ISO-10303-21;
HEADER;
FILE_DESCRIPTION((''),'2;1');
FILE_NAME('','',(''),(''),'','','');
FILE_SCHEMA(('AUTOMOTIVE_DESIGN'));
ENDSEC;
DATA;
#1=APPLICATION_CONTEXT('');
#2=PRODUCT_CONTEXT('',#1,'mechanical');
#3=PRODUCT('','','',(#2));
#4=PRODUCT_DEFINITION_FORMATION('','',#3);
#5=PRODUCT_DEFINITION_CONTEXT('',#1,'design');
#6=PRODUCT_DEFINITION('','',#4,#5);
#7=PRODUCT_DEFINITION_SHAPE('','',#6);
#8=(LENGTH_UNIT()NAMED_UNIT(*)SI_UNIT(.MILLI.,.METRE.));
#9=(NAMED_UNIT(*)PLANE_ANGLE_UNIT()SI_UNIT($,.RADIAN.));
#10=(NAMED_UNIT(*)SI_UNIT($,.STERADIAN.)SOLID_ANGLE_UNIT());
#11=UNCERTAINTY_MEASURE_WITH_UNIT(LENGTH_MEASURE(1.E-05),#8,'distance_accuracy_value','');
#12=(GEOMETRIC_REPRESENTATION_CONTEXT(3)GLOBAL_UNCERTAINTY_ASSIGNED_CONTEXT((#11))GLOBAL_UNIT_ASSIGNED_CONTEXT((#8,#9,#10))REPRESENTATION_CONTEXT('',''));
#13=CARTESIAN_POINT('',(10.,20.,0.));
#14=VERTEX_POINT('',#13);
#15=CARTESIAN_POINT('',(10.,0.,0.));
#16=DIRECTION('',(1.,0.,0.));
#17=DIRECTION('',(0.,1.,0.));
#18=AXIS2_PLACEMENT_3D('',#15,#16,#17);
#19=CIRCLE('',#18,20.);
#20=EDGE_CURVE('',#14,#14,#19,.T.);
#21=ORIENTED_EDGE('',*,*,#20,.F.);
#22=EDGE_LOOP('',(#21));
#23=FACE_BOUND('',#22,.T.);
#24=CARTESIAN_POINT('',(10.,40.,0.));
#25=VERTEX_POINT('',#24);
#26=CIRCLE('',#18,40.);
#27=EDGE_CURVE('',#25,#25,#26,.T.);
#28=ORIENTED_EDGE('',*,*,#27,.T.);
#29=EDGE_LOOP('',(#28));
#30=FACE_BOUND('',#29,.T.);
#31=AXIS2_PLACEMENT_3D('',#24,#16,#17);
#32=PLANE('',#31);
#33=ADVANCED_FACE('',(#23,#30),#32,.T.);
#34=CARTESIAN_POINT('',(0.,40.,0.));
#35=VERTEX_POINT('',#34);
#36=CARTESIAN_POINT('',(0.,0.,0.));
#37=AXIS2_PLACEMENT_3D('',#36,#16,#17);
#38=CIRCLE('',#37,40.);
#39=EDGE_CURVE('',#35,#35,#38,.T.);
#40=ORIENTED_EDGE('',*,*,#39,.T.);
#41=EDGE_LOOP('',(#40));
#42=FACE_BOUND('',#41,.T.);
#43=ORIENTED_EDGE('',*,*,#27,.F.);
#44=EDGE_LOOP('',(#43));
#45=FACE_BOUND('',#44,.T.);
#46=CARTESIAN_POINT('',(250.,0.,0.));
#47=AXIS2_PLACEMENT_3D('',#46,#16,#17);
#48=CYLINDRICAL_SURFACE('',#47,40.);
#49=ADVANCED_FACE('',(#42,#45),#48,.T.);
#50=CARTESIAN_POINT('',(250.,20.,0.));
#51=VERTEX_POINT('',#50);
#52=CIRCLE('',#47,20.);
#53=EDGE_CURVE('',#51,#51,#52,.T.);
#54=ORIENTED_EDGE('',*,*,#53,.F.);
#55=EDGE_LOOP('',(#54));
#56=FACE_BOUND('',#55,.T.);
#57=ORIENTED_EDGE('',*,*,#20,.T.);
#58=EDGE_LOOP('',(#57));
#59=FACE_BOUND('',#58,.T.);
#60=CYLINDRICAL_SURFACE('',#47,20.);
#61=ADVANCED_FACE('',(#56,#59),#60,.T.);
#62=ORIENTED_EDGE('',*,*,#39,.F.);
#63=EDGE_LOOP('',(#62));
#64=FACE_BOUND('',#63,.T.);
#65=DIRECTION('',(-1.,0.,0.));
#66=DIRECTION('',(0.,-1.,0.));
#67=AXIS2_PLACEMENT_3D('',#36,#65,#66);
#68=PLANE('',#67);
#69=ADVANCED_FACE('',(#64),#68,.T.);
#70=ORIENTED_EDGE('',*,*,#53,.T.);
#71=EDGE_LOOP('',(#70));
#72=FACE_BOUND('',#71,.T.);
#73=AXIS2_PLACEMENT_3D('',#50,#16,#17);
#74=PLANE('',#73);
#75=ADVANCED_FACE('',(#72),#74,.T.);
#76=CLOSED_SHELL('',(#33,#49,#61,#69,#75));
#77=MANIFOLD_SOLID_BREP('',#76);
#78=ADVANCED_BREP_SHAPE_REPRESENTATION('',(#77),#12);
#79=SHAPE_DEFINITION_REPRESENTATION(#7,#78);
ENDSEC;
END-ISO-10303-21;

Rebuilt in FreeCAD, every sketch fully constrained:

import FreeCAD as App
import Part
import Sketcher
from FreeCAD import Vector

doc = App.newDocument("Part")
body = doc.addObject("PartDesign::Body", "Body")

sketch1 = body.newObject("Sketcher::SketchObject", "Sketch")
sketch1.AttachmentSupport = (doc.getObject("XY_Plane"), [""])
sketch1.MapMode = "FlatFace"
sketch1.addGeometry(Part.LineSegment(Vector(0, 40, 0), Vector(0, 0, 0)), False)
sketch1.addGeometry(Part.LineSegment(Vector(0, 0, 0), Vector(250, 0, 0)), False)
sketch1.addGeometry(Part.LineSegment(Vector(250, 0, 0), Vector(250, 20, 0)), False)
sketch1.addGeometry(Part.LineSegment(Vector(250, 20, 0), Vector(10, 20, 0)), False)
sketch1.addGeometry(Part.LineSegment(Vector(10, 20, 0), Vector(10, 40, 0)), False)
sketch1.addGeometry(Part.LineSegment(Vector(10, 40, 0), Vector(0, 40, 0)), False)
sketch1.addConstraint(Sketcher.Constraint("Coincident", 0, 2, 1, 1))
sketch1.addConstraint(Sketcher.Constraint("Coincident", 1, 2, 2, 1))
sketch1.addConstraint(Sketcher.Constraint("Coincident", 2, 2, 3, 1))
sketch1.addConstraint(Sketcher.Constraint("Coincident", 3, 2, 4, 1))
sketch1.addConstraint(Sketcher.Constraint("Coincident", 4, 2, 5, 1))
sketch1.addConstraint(Sketcher.Constraint("Coincident", 5, 2, 0, 1))
sketch1.addConstraint(Sketcher.Constraint("Vertical", 0))
sketch1.addConstraint(Sketcher.Constraint("Horizontal", 1))
sketch1.addConstraint(Sketcher.Constraint("Vertical", 2))
sketch1.addConstraint(Sketcher.Constraint("Horizontal", 3))
sketch1.addConstraint(Sketcher.Constraint("Vertical", 4))
sketch1.addConstraint(Sketcher.Constraint("Horizontal", 5))
sketch1.addConstraint(Sketcher.Constraint("Coincident", 0, 2, -1, 1))
sketch1.addConstraint(Sketcher.Constraint("Equal", 2, 4))
sketch1.addConstraint(Sketcher.Constraint("DistanceX", 1, 1, 1, 2, 250.0))
sketch1.addConstraint(Sketcher.Constraint("DistanceX", 3, 2, 3, 1, 240.0))
sketch1.addConstraint(Sketcher.Constraint("DistanceY", 0, 2, 0, 1, 40.0))
revolution = body.newObject("PartDesign::Revolution", "Revolution")
revolution.Profile = sketch1
revolution.ReferenceAxis = (sketch1, ["H_Axis"])
revolution.Angle = 360

doc.recompute()
